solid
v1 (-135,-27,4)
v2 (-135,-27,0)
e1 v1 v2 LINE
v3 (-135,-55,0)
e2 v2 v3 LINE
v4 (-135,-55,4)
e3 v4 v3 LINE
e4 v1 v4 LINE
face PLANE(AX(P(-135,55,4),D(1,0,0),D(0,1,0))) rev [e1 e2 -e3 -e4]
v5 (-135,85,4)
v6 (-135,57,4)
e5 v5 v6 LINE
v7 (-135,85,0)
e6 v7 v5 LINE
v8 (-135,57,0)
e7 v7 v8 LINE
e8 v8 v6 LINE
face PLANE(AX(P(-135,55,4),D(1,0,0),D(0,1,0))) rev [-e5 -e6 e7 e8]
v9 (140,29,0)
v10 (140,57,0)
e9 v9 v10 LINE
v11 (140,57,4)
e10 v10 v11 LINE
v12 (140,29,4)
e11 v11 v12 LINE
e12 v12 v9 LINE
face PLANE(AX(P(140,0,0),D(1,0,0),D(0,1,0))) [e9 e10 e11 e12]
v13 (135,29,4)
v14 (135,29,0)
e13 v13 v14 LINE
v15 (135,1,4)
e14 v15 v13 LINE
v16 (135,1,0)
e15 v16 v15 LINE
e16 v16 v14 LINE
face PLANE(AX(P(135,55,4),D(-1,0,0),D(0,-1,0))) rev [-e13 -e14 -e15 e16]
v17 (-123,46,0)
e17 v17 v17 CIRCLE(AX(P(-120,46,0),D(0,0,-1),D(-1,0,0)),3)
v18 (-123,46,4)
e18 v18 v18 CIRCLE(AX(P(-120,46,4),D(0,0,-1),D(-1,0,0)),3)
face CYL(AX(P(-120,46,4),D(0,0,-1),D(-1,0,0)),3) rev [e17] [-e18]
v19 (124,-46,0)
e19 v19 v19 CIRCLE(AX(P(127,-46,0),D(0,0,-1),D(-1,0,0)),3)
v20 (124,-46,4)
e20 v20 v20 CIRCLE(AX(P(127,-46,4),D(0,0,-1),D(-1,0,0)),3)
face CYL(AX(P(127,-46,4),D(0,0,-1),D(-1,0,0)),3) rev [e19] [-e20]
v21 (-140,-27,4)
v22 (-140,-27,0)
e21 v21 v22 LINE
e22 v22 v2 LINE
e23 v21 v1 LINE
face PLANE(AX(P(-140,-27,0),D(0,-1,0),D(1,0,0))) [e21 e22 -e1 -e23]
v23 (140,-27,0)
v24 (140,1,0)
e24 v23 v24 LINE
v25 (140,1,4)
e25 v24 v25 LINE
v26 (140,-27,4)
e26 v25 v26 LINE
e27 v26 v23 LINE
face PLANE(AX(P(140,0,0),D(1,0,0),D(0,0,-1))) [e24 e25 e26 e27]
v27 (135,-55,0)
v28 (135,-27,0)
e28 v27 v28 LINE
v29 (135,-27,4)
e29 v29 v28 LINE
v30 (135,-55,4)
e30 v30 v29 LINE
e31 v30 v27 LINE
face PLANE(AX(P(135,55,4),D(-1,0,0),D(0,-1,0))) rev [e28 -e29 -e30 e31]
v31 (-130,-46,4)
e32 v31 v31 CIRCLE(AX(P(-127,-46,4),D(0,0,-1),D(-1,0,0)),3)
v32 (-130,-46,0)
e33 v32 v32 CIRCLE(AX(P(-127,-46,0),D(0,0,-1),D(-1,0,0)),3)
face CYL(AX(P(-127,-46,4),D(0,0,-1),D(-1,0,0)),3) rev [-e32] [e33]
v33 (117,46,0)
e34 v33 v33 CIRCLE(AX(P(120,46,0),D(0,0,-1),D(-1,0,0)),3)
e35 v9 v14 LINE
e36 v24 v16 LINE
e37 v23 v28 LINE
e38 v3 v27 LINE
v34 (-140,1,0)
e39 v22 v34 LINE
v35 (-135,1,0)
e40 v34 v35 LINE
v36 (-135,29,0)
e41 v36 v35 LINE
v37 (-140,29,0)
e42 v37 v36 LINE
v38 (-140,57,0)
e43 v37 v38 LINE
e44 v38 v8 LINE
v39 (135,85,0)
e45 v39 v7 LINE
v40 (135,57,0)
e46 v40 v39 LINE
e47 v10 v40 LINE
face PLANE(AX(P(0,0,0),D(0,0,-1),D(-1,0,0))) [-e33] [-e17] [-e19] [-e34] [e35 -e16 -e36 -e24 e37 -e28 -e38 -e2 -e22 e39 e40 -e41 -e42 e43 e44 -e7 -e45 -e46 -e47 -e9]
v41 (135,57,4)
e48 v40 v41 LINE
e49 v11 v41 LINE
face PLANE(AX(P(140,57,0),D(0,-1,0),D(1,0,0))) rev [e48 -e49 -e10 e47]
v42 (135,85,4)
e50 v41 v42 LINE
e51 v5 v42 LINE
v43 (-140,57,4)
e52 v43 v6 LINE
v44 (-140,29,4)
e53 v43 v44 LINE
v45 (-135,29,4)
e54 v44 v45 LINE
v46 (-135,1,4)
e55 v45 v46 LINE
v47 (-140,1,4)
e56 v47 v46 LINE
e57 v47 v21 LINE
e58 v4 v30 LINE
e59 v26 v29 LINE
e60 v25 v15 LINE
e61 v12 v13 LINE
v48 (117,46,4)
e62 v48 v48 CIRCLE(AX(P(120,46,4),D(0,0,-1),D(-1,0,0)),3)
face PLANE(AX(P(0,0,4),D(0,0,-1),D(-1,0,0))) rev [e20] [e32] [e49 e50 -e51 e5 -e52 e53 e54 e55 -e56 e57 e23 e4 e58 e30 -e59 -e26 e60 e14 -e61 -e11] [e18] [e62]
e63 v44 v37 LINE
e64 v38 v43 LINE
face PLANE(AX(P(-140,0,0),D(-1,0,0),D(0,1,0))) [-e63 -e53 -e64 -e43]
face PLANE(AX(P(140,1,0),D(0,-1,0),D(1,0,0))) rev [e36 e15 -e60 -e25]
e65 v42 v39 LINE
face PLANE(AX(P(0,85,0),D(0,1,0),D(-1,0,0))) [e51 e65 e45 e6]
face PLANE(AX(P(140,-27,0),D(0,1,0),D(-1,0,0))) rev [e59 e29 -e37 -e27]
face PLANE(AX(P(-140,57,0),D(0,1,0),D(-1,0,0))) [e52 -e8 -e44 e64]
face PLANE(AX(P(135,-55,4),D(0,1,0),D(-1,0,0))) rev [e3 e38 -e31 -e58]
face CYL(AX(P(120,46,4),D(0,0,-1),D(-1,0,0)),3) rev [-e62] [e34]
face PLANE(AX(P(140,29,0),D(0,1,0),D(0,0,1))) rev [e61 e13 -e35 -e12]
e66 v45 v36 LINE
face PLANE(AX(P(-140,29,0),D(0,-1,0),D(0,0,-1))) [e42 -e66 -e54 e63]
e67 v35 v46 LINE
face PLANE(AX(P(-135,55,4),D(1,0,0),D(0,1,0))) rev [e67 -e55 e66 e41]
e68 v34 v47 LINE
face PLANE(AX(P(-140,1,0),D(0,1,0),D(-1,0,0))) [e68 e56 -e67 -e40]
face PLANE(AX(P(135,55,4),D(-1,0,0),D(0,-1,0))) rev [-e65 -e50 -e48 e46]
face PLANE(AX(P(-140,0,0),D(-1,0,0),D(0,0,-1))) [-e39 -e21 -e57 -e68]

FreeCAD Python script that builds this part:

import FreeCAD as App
import Part
import Sketcher

V = App.Vector

doc = App.newDocument("Part")
body = doc.addObject("PartDesign::Body", "Body")

# Sketch on XY plane
sketch1 = doc.addObject("Sketcher::SketchObject", "Sketch")
body.addObject(sketch1)
sketch1.AttachmentSupport = (doc.XY_Plane, [""])
sketch1.MapMode = "FlatFace"
sketch1.addGeometry([
    Part.LineSegment(V(-135, 55, 0), V(-135, -55, 0)),
    Part.LineSegment(V(-135, -55, 0), V(135, -55, 0)),
    Part.LineSegment(V(135, -55, 0), V(135, 55, 0)),
    Part.LineSegment(V(135, 55, 0), V(-135, 55, 0)),
], False)
sketch1.addConstraint([
    Sketcher.Constraint("Coincident", 0, 2, 1, 1),
    Sketcher.Constraint("Coincident", 1, 2, 2, 1),
    Sketcher.Constraint("Coincident", 2, 2, 3, 1),
    Sketcher.Constraint("Coincident", 3, 2, 0, 1),
    Sketcher.Constraint("Vertical", 0),
    Sketcher.Constraint("Horizontal", 1),
    Sketcher.Constraint("Vertical", 2),
    Sketcher.Constraint("Horizontal", 3),
    Sketcher.Constraint("Symmetric", 0, 2, 2, 2, -1, 1),
    Sketcher.Constraint("DistanceX", 1, 1, 1, 2, 270.0),
    Sketcher.Constraint("DistanceY", 0, 2, 0, 1, 110.0),
])
pad1 = doc.addObject("PartDesign::Pad", "Pad")
body.addObject(pad1)
pad1.Profile = sketch1
pad1.Length = 4

# Sketch on XY plane
sketch2 = doc.addObject("Sketcher::SketchObject", "Sketch001")
body.addObject(sketch2)
sketch2.AttachmentSupport = (doc.XY_Plane, [""])
sketch2.MapMode = "FlatFace"
sketch2.addGeometry([
    Part.Circle(V(120, 46, 0), V(0, 0, 1), 3),
    Part.Circle(V(127, -46, 0), V(0, 0, 1), 3),
    Part.Circle(V(-120, 46, 0), V(0, 0, 1), 3),
    Part.Circle(V(-127, -46, 0), V(0, 0, 1), 3),
], False)
sketch2.addConstraint([
    Sketcher.Constraint("Equal", 0, 1),
    Sketcher.Constraint("Equal", 1, 2),
    Sketcher.Constraint("Equal", 2, 3),
    Sketcher.Constraint("Symmetric", 0, 3, 2, 3, -2),
    Sketcher.Constraint("Symmetric", 1, 3, 3, 3, -2),
    Sketcher.Constraint("Diameter", 0, 6.0),
    Sketcher.Constraint("DistanceX", -1, 1, 0, 3, 120.0),
    Sketcher.Constraint("DistanceY", -1, 1, 0, 3, 46.0),
    Sketcher.Constraint("DistanceX", -1, 1, 1, 3, 127.0),
    Sketcher.Constraint("DistanceY", 1, 3, -1, 1, 46.0),
])
pocket1 = doc.addObject("PartDesign::Pocket", "Pocket")
body.addObject(pocket1)
pocket1.Profile = sketch2
pocket1.Type = "ThroughAll"
pocket1.Reversed = True

# Sketch on XZ plane
sketch3 = doc.addObject("Sketcher::SketchObject", "Sketch002")
body.addObject(sketch3)
sketch3.AttachmentSupport = (doc.XZ_Plane, [""])
sketch3.MapMode = "FlatFace"
sketch3.AttachmentOffset = App.Placement(V(0, 0, -55), App.Rotation())
sketch3.addGeometry([
    Part.LineSegment(V(-135, 0, 0), V(-135, 4, 0)),
    Part.LineSegment(V(-135, 4, 0), V(135, 4, 0)),
    Part.LineSegment(V(135, 4, 0), V(135, 0, 0)),
    Part.LineSegment(V(135, 0, 0), V(-135, 0, 0)),
], False)
sketch3.addConstraint([
    Sketcher.Constraint("Coincident", 0, 2, 1, 1),
    Sketcher.Constraint("Coincident", 1, 2, 2, 1),
    Sketcher.Constraint("Coincident", 2, 2, 3, 1),
    Sketcher.Constraint("Coincident", 3, 2, 0, 1),
    Sketcher.Constraint("Vertical", 0),
    Sketcher.Constraint("Horizontal", 1),
    Sketcher.Constraint("Vertical", 2),
    Sketcher.Constraint("Horizontal", 3),
    Sketcher.Constraint("Symmetric", 2, 2, 3, 2, -1, 1),
    Sketcher.Constraint("DistanceX", 1, 1, 1, 2, 270.0),
    Sketcher.Constraint("DistanceY", 0, 1, 0, 2, 4.0),
])
pad2 = doc.addObject("PartDesign::Pad", "Pad001")
body.addObject(pad2)
pad2.Profile = sketch3
pad2.Length = 30
pad2.Reversed = True

# Sketch on YZ plane
sketch4 = doc.addObject("Sketcher::SketchObject", "Sketch003")
body.addObject(sketch4)
sketch4.AttachmentSupport = (doc.YZ_Plane, [""])
sketch4.MapMode = "FlatFace"
sketch4.AttachmentOffset = App.Placement(V(0, 0, 135), App.Rotation())
sketch4.addGeometry([
    Part.LineSegment(V(1, 4, 0), V(-27, 4, 0)),  # 0
    Part.LineSegment(V(-27, 4, 0), V(-27, 0, 0)),  # 1
    Part.LineSegment(V(-27, 0, 0), V(1, 0, 0)),  # 2
    Part.LineSegment(V(1, 0, 0), V(1, 4, 0)),  # 3
    Part.LineSegment(V(57, 4, 0), V(29, 4, 0)),  # 4
    Part.LineSegment(V(29, 4, 0), V(29, 0, 0)),  # 5
    Part.LineSegment(V(29, 0, 0), V(57, 0, 0)),  # 6
    Part.LineSegment(V(57, 0, 0), V(57, 4, 0)),  # 7
], False)
sketch4.addConstraint([
    Sketcher.Constraint("Coincident", 0, 2, 1, 1),
    Sketcher.Constraint("Coincident", 1, 2, 2, 1),
    Sketcher.Constraint("Coincident", 2, 2, 3, 1),
    Sketcher.Constraint("Coincident", 3, 2, 0, 1),
    Sketcher.Constraint("Coincident", 4, 2, 5, 1),
    Sketcher.Constraint("Coincident", 5, 2, 6, 1),
    Sketcher.Constraint("Coincident", 6, 2, 7, 1),
    Sketcher.Constraint("Coincident", 7, 2, 4, 1),
    Sketcher.Constraint("Horizontal", 0),
    Sketcher.Constraint("Vertical", 1),
    Sketcher.Constraint("Horizontal", 2),
    Sketcher.Constraint("Vertical", 3),
    Sketcher.Constraint("Horizontal", 4),
    Sketcher.Constraint("Vertical", 5),
    Sketcher.Constraint("Horizontal", 6),
    Sketcher.Constraint("Vertical", 7),
    Sketcher.Constraint("PointOnObject", 1, 2, -1),
    Sketcher.Constraint("PointOnObject", 5, 2, -1),
    Sketcher.Constraint("Horizontal", 3, 2, 4, 2),
    Sketcher.Constraint("Equal", 2, 4),
    Sketcher.Constraint("DistanceX", 0, 2, 0, 1, 28.0),
    Sketcher.Constraint("DistanceY", 1, 2, 1, 1, 4.0),
    Sketcher.Constraint("DistanceX", 0, 2, -1, 1, 27.0),
    Sketcher.Constraint("DistanceX", -1, 1, 4, 2, 29.0),
])
pad3 = doc.addObject("PartDesign::Pad", "Pad002")
body.addObject(pad3)
pad3.Profile = sketch4
pad3.Length = 5
doc.recompute()

mirrored = doc.addObject("PartDesign::Mirrored", "Mirrored")
body.addObject(mirrored)
mirrored.Originals = [pad3]
mirrored.MirrorPlane = (doc.YZ_Plane, [""])
body.Tip = mirrored

doc.recompute()
